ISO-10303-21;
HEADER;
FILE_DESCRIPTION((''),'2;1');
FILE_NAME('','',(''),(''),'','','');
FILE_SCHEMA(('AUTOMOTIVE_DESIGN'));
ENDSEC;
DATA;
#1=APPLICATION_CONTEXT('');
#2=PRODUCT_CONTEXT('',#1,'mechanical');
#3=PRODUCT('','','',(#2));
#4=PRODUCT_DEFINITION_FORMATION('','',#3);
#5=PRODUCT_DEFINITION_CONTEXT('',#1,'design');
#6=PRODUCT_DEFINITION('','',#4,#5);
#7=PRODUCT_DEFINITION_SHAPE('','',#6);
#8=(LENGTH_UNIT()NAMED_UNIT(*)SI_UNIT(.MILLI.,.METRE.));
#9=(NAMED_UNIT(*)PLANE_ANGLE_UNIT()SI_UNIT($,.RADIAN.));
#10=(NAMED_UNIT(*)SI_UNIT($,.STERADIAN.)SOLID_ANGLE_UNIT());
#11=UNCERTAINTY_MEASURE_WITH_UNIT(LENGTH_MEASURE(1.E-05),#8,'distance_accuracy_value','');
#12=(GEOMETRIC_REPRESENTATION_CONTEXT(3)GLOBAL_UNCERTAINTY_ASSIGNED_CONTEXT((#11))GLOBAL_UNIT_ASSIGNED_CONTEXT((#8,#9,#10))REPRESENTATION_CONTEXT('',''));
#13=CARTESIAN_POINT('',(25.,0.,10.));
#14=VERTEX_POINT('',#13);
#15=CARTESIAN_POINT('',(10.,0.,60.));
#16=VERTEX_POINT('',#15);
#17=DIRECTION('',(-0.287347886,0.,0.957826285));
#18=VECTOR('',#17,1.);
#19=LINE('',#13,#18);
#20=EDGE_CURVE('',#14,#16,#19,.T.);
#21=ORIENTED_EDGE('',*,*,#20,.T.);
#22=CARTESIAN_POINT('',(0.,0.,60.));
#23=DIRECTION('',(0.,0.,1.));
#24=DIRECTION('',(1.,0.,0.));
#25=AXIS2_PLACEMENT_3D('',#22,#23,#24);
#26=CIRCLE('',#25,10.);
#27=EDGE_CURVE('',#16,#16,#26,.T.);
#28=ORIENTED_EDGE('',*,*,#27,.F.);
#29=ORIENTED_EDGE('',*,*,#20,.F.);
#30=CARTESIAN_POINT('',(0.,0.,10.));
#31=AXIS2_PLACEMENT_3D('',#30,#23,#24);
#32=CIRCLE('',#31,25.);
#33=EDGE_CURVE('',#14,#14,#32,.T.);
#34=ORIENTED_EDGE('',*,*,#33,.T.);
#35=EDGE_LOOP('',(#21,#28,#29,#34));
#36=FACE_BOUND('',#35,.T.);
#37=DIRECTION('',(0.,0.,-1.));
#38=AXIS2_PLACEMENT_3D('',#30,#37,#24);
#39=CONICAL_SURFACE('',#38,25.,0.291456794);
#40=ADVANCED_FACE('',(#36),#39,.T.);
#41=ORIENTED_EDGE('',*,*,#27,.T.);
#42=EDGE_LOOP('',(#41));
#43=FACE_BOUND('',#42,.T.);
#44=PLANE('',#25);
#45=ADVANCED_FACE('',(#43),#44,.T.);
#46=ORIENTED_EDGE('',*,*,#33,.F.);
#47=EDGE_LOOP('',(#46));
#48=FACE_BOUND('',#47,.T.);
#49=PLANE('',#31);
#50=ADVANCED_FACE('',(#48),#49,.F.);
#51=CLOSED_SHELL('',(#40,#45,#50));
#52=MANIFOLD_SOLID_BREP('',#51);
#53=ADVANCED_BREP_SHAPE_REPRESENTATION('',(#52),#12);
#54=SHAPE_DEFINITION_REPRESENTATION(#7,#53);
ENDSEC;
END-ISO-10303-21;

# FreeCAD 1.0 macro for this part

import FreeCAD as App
import Part
import Sketcher
from FreeCAD import Vector
Q = App.Units.Quantity

doc = App.newDocument("Part")
params = doc.addObject("Spreadsheet::Sheet", "Params")
for row, (alias, value) in enumerate([
    ("sketch1_width", "25 mm"),
    ("sketch1_width2", "10 mm"),
    ("sketch1_height", "50 mm"),
    ("revolution_angle", "360 deg"),
], start=1):
    params.set(f"A{row}", alias)
    params.set(f"B{row}", "=" + value)
    params.setAlias(f"B{row}", alias)

body = doc.addObject("PartDesign::Body", "Body")

sketch1 = body.newObject("Sketcher::SketchObject", "Sketch")
sketch1.AttachmentSupport = (doc.getObject("XZ_Plane"), [""])
sketch1.MapMode = "FlatFace"
sketch1.addGeometry([
    Part.LineSegment(Vector(0, 10, 0), Vector(25, 10, 0)),
    Part.LineSegment(Vector(25, 10, 0), Vector(10, 60, 0)),
    Part.LineSegment(Vector(10, 60, 0), Vector(0, 60, 0)),
    Part.LineSegment(Vector(0, 60, 0), Vector(0, 10, 0)),
], False)
sketch1.addConstraint([
    Sketcher.Constraint("Coincident", 0, 2, 1, 1),
    Sketcher.Constraint("Coincident", 1, 2, 2, 1),
    Sketcher.Constraint("Coincident", 2, 2, 3, 1),
    Sketcher.Constraint("Coincident", 3, 2, 0, 1),
    Sketcher.Constraint("Horizontal", 0),
    Sketcher.Constraint("Horizontal", 2),
    Sketcher.Constraint("Vertical", 3),
    Sketcher.Constraint("PointOnObject", 2, 2, -2),
    Sketcher.Constraint("DistanceX", 0, 1, 0, 2, Q("25 mm")),
    Sketcher.Constraint("DistanceX", 2, 2, 2, 1, Q("10 mm")),
    Sketcher.Constraint("DistanceY", 3, 2, 3, 1, Q("50 mm")),
    Sketcher.Constraint("DistanceY", -1, 1, 0, 2, Q("10 mm")),
])
sketch1.setExpression("Constraints[8]", "Params.sketch1_width")
sketch1.setExpression("Constraints[9]", "Params.sketch1_width2")
sketch1.setExpression("Constraints[10]", "Params.sketch1_height")
revolution = body.newObject("PartDesign::Revolution", "Revolution")
revolution.Profile = sketch1
revolution.ReferenceAxis = (sketch1, ["V_Axis"])
revolution.setExpression("Angle", "Params.revolution_angle")

doc.recompute()
